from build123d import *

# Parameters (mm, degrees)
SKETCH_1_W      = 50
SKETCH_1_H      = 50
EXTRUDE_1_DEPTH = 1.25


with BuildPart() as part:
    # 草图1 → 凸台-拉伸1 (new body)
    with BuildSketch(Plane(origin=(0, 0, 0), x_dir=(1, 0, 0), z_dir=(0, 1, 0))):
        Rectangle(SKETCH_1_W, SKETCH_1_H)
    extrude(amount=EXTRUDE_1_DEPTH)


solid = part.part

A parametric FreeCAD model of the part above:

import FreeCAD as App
import Part
import Sketcher

V = App.Vector
Q = App.Units.Quantity


def add_polygon(sketch, points):
    """Adds a closed chain of lines whose ends are joined by coincident constraints."""
    first, n = sketch.GeometryCount, len(points)
    for a, b in zip(points, points[1:] + points[:1]):
        sketch.addGeometry(Part.LineSegment(App.Vector(*a, 0), App.Vector(*b, 0)), False)
    for i in range(n):
        sketch.addConstraint(Sketcher.Constraint("Coincident", first + i, 2, first + (i + 1) % n, 1))

doc = App.newDocument("Part")
body = doc.addObject("PartDesign::Body", "Body")

sketch1 = body.newObject("Sketcher::SketchObject", "Sketch")
sketch1.AttachmentSupport = (doc.getObject("XZ_Plane"), [""])
sketch1.MapMode = "FlatFace"
add_polygon(sketch1, [(-25, -25), (-25, 25), (25, 25), (25, -25)])
sketch1.addConstraint([
    Sketcher.Constraint("Vertical", 0),
    Sketcher.Constraint("Horizontal", 1),
    Sketcher.Constraint("Vertical", 2),
    Sketcher.Constraint("Horizontal", 3),
    Sketcher.Constraint("Symmetric", 0, 2, 2, 2, -1, 1),
    Sketcher.Constraint("Equal", 3, 0),
    Sketcher.Constraint("DistanceX", 1, 1, 1, 2, Q("50 mm")),
])
pad1 = body.newObject("PartDesign::Pad", "Pad")
pad1.Profile = sketch1
pad1.Length = 1.25
pad1.Reversed = True

doc.recompute()
